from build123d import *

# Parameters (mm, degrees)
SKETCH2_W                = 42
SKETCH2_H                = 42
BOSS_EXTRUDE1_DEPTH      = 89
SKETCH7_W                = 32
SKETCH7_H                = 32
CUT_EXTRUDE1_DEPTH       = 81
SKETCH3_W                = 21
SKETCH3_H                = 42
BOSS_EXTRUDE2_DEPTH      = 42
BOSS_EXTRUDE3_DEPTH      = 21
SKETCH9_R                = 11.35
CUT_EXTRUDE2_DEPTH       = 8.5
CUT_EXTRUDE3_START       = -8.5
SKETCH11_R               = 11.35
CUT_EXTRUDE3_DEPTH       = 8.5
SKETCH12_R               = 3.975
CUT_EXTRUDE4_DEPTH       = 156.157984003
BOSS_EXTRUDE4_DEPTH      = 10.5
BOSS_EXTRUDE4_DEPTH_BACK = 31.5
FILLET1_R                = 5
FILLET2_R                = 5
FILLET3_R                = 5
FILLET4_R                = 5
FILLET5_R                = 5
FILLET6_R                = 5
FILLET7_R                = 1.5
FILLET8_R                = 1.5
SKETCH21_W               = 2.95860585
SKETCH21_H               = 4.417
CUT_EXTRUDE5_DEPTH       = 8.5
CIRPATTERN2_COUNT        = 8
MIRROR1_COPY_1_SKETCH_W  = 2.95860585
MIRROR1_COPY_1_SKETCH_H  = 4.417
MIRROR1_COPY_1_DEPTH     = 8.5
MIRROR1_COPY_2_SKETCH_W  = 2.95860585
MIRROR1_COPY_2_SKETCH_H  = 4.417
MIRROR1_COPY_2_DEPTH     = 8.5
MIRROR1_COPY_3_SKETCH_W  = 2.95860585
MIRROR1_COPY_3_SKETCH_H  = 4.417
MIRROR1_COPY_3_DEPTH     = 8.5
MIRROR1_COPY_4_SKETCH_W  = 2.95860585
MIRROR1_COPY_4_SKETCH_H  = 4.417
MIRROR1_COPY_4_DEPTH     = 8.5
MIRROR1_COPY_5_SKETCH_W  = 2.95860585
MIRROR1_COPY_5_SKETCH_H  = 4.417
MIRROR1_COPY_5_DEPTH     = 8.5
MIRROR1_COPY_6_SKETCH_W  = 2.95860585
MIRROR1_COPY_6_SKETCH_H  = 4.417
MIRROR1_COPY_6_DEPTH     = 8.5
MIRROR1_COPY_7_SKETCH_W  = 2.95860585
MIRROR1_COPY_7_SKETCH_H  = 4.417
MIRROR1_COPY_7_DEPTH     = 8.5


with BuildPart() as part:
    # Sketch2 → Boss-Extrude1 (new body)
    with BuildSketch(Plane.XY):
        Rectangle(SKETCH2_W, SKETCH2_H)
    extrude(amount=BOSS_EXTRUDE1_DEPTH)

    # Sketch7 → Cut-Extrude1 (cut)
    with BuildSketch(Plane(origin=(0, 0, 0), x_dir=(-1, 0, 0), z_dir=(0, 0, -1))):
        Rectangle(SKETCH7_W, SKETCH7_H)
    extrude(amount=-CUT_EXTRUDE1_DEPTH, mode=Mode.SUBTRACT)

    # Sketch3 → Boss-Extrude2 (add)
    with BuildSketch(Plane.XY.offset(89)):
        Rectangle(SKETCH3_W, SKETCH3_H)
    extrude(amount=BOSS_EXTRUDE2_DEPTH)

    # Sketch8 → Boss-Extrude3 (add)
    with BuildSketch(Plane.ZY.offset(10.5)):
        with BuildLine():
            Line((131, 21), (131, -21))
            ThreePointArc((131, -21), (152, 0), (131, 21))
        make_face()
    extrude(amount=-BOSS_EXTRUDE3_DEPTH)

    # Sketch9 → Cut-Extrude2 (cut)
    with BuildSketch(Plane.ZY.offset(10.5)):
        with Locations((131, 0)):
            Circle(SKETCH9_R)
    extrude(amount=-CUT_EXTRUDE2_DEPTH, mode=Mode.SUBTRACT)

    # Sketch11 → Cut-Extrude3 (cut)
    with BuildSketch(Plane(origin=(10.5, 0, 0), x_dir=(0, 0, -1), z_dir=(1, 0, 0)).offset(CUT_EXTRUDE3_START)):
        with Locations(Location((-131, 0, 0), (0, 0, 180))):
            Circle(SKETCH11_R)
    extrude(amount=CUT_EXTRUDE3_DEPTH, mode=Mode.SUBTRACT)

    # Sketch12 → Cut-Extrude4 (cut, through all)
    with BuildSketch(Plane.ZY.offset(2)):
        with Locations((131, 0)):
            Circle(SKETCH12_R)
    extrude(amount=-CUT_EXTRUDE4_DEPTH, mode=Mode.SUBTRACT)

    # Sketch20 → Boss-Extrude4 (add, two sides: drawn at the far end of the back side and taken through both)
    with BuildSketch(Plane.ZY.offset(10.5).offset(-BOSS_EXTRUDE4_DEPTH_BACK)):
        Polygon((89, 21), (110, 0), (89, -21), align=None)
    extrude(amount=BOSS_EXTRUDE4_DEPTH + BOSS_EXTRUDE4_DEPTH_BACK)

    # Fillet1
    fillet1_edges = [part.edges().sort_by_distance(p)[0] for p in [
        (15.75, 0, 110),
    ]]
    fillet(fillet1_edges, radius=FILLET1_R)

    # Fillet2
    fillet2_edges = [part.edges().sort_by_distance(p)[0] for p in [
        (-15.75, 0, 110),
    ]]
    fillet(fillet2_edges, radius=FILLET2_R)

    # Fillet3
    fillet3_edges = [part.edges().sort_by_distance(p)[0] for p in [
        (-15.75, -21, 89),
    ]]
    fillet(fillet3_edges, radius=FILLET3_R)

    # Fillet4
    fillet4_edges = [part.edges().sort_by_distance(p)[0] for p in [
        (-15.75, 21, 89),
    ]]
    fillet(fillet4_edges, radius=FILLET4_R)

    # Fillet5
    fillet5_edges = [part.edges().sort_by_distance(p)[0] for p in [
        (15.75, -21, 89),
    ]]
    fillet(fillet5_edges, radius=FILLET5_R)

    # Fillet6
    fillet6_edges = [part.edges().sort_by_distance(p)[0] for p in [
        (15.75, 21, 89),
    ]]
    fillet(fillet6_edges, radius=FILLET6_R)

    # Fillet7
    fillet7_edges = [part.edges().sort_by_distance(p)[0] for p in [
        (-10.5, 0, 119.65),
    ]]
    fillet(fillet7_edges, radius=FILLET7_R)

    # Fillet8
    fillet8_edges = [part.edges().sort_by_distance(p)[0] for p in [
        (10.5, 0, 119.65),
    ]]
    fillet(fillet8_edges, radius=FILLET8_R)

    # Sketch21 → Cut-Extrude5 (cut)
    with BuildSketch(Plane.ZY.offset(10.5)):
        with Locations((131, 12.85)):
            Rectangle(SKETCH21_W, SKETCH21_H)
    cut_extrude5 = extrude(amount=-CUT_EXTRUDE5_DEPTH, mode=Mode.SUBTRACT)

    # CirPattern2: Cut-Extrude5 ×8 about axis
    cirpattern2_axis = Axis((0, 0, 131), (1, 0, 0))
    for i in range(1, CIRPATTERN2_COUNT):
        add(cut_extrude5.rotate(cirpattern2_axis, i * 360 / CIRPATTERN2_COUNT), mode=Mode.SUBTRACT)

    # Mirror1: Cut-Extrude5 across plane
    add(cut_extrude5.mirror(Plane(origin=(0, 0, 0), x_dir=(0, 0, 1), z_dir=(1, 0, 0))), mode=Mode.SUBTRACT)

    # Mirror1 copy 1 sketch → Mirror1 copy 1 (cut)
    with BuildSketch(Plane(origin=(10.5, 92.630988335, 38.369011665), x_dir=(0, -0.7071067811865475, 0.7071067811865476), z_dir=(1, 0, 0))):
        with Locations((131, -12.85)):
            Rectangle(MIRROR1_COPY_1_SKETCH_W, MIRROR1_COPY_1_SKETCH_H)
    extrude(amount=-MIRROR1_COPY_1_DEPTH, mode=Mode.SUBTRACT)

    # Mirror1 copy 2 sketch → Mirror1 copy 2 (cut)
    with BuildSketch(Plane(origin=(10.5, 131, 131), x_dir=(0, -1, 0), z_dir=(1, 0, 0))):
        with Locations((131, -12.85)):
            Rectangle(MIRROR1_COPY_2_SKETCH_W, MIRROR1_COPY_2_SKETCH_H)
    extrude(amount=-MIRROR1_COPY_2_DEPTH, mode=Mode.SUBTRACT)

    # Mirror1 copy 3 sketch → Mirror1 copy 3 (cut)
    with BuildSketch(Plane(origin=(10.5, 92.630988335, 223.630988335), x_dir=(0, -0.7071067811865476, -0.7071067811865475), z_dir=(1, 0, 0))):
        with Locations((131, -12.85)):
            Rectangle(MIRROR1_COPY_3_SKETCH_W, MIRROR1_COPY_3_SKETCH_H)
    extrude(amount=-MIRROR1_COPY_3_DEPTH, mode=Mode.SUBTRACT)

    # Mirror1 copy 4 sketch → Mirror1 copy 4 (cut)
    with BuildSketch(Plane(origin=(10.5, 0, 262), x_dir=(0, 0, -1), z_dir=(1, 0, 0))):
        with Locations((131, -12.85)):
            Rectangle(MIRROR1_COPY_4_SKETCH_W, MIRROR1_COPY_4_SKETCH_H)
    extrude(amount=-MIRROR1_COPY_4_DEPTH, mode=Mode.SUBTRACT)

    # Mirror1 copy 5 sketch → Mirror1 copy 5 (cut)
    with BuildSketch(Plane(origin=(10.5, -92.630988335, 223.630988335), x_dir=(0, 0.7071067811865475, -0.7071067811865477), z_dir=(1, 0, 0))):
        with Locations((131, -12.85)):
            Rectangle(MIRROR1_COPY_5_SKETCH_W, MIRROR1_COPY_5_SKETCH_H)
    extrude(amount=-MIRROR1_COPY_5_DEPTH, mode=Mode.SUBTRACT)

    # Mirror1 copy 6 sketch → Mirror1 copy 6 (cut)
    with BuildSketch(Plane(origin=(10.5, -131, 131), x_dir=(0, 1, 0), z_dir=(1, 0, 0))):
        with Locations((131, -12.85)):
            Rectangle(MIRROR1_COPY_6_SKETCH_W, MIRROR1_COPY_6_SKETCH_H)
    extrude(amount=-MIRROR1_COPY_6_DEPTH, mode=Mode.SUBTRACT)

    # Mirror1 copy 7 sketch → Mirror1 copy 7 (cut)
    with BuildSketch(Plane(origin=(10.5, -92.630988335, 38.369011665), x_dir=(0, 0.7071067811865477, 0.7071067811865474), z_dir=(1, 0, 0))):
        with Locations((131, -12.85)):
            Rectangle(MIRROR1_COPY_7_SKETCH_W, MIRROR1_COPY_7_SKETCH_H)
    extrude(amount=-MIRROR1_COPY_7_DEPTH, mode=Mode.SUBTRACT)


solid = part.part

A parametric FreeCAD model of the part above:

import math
import FreeCAD as App
import Part
import Sketcher

V = App.Vector
Q = App.Units.Quantity


def edges_at(feature, points):
    """Names of the edges that pass closest to the given points."""
    edges = feature.Shape.Edges
    near = lambda p: min(range(len(edges)), key=lambda i: edges[i].distToShape(Part.Vertex(*p))[0])
    return sorted({f"Edge{near(p) + 1}" for p in points})

doc = App.newDocument("Part")
body = doc.addObject("PartDesign::Body", "Body")

sketch1 = doc.addObject("Sketcher::SketchObject", "Sketch")
body.addObject(sketch1)
sketch1.AttachmentSupport = (doc.XY_Plane, [""])
sketch1.MapMode = "FlatFace"
sketch1.addGeometry(Part.LineSegment(V(-21, 21, 0), V(-21, -21, 0)), False)
sketch1.addGeometry(Part.LineSegment(V(-21, -21, 0), V(21, -21, 0)), False)
sketch1.addGeometry(Part.LineSegment(V(21, -21, 0), V(21, 21, 0)), False)
sketch1.addGeometry(Part.LineSegment(V(21, 21, 0), V(-21, 21, 0)), False)
sketch1.addConstraint(Sketcher.Constraint("Coincident", 0, 2, 1, 1))
sketch1.addConstraint(Sketcher.Constraint("Coincident", 1, 2, 2, 1))
sketch1.addConstraint(Sketcher.Constraint("Coincident", 2, 2, 3, 1))
sketch1.addConstraint(Sketcher.Constraint("Coincident", 3, 2, 0, 1))
sketch1.addConstraint(Sketcher.Constraint("Vertical", 0))
sketch1.addConstraint(Sketcher.Constraint("Horizontal", 1))
sketch1.addConstraint(Sketcher.Constraint("Vertical", 2))
sketch1.addConstraint(Sketcher.Constraint("Horizontal", 3))
sketch1.addConstraint(Sketcher.Constraint("Symmetric", 0, 2, 2, 2, -1, 1))
sketch1.addConstraint(Sketcher.Constraint("Equal", 3, 0))
sketch1.addConstraint(Sketcher.Constraint("DistanceX", 1, 1, 1, 2, 42.0))
pad1 = doc.addObject("PartDesign::Pad", "Pad")
body.addObject(pad1)
pad1.Profile = sketch1
pad1.Length = 89

sketch2 = doc.addObject("Sketcher::SketchObject", "Sketch001")
body.addObject(sketch2)
sketch2.AttachmentSupport = (doc.XY_Plane, [""])
sketch2.MapMode = "FlatFace"
sketch2.addGeometry(Part.LineSegment(V(16, 16, 0), V(16, -16, 0)), False)
sketch2.addGeometry(Part.LineSegment(V(16, -16, 0), V(-16, -16, 0)), False)
sketch2.addGeometry(Part.LineSegment(V(-16, -16, 0), V(-16, 16, 0)), False)
sketch2.addGeometry(Part.LineSegment(V(-16, 16, 0), V(16, 16, 0)), False)
sketch2.addConstraint(Sketcher.Constraint("Coincident", 0, 2, 1, 1))
sketch2.addConstraint(Sketcher.Constraint("Coincident", 1, 2, 2, 1))
sketch2.addConstraint(Sketcher.Constraint("Coincident", 2, 2, 3, 1))
sketch2.addConstraint(Sketcher.Constraint("Coincident", 3, 2, 0, 1))
sketch2.addConstraint(Sketcher.Constraint("Vertical", 0))
sketch2.addConstraint(Sketcher.Constraint("Horizontal", 1))
sketch2.addConstraint(Sketcher.Constraint("Vertical", 2))
sketch2.addConstraint(Sketcher.Constraint("Horizontal", 3))
sketch2.addConstraint(Sketcher.Constraint("Symmetric", 0, 2, 2, 2, -1, 1))
sketch2.addConstraint(Sketcher.Constraint("Equal", 3, 0))
sketch2.addConstraint(Sketcher.Constraint("DistanceX", 1, 2, 1, 1, 32.0))
pocket1 = doc.addObject("PartDesign::Pocket", "Pocket")
body.addObject(pocket1)
pocket1.Profile = sketch2
pocket1.Length = 81
pocket1.Reversed = True

sketch3 = doc.addObject("Sketcher::SketchObject", "Sketch002")
body.addObject(sketch3)
sketch3.AttachmentSupport = (doc.XY_Plane, [""])
sketch3.MapMode = "FlatFace"
sketch3.AttachmentOffset = App.Placement(V(0, 0, 89), App.Rotation())
sketch3.addGeometry(Part.LineSegment(V(-10.5, 21, 0), V(-10.5, -21, 0)), False)
sketch3.addGeometry(Part.LineSegment(V(-10.5, -21, 0), V(10.5, -21, 0)), False)
sketch3.addGeometry(Part.LineSegment(V(10.5, -21, 0), V(10.5, 21, 0)), False)
sketch3.addGeometry(Part.LineSegment(V(10.5, 21, 0), V(-10.5, 21, 0)), False)
sketch3.addConstraint(Sketcher.Constraint("Coincident", 0, 2, 1, 1))
sketch3.addConstraint(Sketcher.Constraint("Coincident", 1, 2, 2, 1))
sketch3.addConstraint(Sketcher.Constraint("Coincident", 2, 2, 3, 1))
sketch3.addConstraint(Sketcher.Constraint("Coincident", 3, 2, 0, 1))
sketch3.addConstraint(Sketcher.Constraint("Vertical", 0))
sketch3.addConstraint(Sketcher.Constraint("Horizontal", 1))
sketch3.addConstraint(Sketcher.Constraint("Vertical", 2))
sketch3.addConstraint(Sketcher.Constraint("Horizontal", 3))
sketch3.addConstraint(Sketcher.Constraint("Symmetric", 0, 2, 2, 2, -1, 1))
sketch3.addConstraint(Sketcher.Constraint("DistanceX", 1, 1, 1, 2, 21.0))
sketch3.addConstraint(Sketcher.Constraint("DistanceY", 0, 2, 0, 1, 42.0))
pad2 = doc.addObject("PartDesign::Pad", "Pad001")
body.addObject(pad2)
pad2.Profile = sketch3
pad2.Length = 42

sketch4 = doc.addObject("Sketcher::SketchObject", "Sketch003")
body.addObject(sketch4)
sketch4.AttachmentSupport = (doc.YZ_Plane, [""])
sketch4.MapMode = "FlatFace"
sketch4.AttachmentOffset = App.Placement(V(0, 0, -10.5), App.Rotation())
sketch4.addGeometry(Part.LineSegment(V(21, 131, 0), V(-21, 131, 0)), False)
sketch4.addGeometry(Part.ArcOfCircle(Part.Circle(V(0, 131, 0), V(0, 0, 1), 21), math.radians(0), math.radians(180)), False)
sketch4.addConstraint(Sketcher.Constraint("Coincident", 0, 1, 1, 1))
sketch4.addConstraint(Sketcher.Constraint("Coincident", 1, 2, 0, 2))
sketch4.addConstraint(Sketcher.Constraint("Horizontal", 0))
sketch4.addConstraint(Sketcher.Constraint("PointOnObject", 1, 3, -2))
sketch4.addConstraint(Sketcher.Constraint("Horizontal", 1, 3, 0, 1))
sketch4.addConstraint(Sketcher.Constraint("Radius", 1, 21.0))
sketch4.addConstraint(Sketcher.Constraint("DistanceY", -1, 1, 1, 3, 131.0))
pad3 = doc.addObject("PartDesign::Pad", "Pad002")
body.addObject(pad3)
pad3.Profile = sketch4
pad3.Length = 21

sketch5 = doc.addObject("Sketcher::SketchObject", "Sketch004")
body.addObject(sketch5)
sketch5.AttachmentSupport = (doc.YZ_Plane, [""])
sketch5.MapMode = "FlatFace"
sketch5.AttachmentOffset = App.Placement(V(0, 0, -10.5), App.Rotation())
sketch5.addGeometry(Part.Circle(V(0, 131, 0), V(0, 0, 1), 11.35), False)
sketch5.addConstraint(Sketcher.Constraint("PointOnObject", 0, 3, -2))
sketch5.addConstraint(Sketcher.Constraint("Diameter", 0, 22.7))
sketch5.addConstraint(Sketcher.Constraint("DistanceY", -1, 1, 0, 3, 131.0))
pocket2 = doc.addObject("PartDesign::Pocket", "Pocket001")
body.addObject(pocket2)
pocket2.Profile = sketch5
pocket2.Length = 8.5
pocket2.Reversed = True

sketch6 = doc.addObject("Sketcher::SketchObject", "Sketch005")
body.addObject(sketch6)
sketch6.AttachmentSupport = (doc.YZ_Plane, [""])
sketch6.MapMode = "FlatFace"
sketch6.AttachmentOffset = App.Placement(V(0, 0, 2), App.Rotation())
sketch6.addGeometry(Part.Circle(V(0, 131, 0), V(0, 0, 1), 11.35), False)
sketch6.addConstraint(Sketcher.Constraint("PointOnObject", 0, 3, -2))
sketch6.addConstraint(Sketcher.Constraint("Diameter", 0, 22.7))
sketch6.addConstraint(Sketcher.Constraint("DistanceY", -1, 1, 0, 3, 131.0))
pocket3 = doc.addObject("PartDesign::Pocket", "Pocket002")
body.addObject(pocket3)
pocket3.Profile = sketch6
pocket3.Length = 8.5
pocket3.Reversed = True

sketch7 = doc.addObject("Sketcher::SketchObject", "Sketch006")
body.addObject(sketch7)
sketch7.AttachmentSupport = (doc.YZ_Plane, [""])
sketch7.MapMode = "FlatFace"
sketch7.AttachmentOffset = App.Placement(V(0, 0, -2), App.Rotation())
sketch7.addGeometry(Part.Circle(V(0, 131, 0), V(0, 0, 1), 3.975), False)
sketch7.addConstraint(Sketcher.Constraint("PointOnObject", 0, 3, -2))
sketch7.addConstraint(Sketcher.Constraint("Diameter", 0, 7.95))
sketch7.addConstraint(Sketcher.Constraint("DistanceY", -1, 1, 0, 3, 131.0))
pocket4 = doc.addObject("PartDesign::Pocket", "Pocket003")
body.addObject(pocket4)
pocket4.Profile = sketch7
pocket4.Type = "ThroughAll"
pocket4.Reversed = True

sketch8 = doc.addObject("Sketcher::SketchObject", "Sketch007")
body.addObject(sketch8)
sketch8.AttachmentSupport = (doc.YZ_Plane, [""])
sketch8.MapMode = "FlatFace"
sketch8.AttachmentOffset = App.Placement(V(0, 0, -10.5), App.Rotation())
sketch8.addGeometry(Part.LineSegment(V(0, 110, 0), V(21, 89, 0)), False)
sketch8.addGeometry(Part.LineSegment(V(21, 89, 0), V(-21, 89, 0)), False)
sketch8.addGeometry(Part.LineSegment(V(-21, 89, 0), V(0, 110, 0)), False)
sketch8.addConstraint(Sketcher.Constraint("Coincident", 0, 2, 1, 1))
sketch8.addConstraint(Sketcher.Constraint("Coincident", 1, 2, 2, 1))
sketch8.addConstraint(Sketcher.Constraint("Coincident", 2, 2, 0, 1))
sketch8.addConstraint(Sketcher.Constraint("Horizontal", 1))
sketch8.addConstraint(Sketcher.Constraint("PointOnObject", 2, 2, -2))
sketch8.addConstraint(Sketcher.Constraint("Perpendicular", 0, 2))
sketch8.addConstraint(Sketcher.Constraint("Equal", 0, 2))
sketch8.addConstraint(Sketcher.Constraint("DistanceX", 1, 2, 1, 1, 42.0))
sketch8.addConstraint(Sketcher.Constraint("DistanceY", -1, 1, 0, 2, 89.0))
pad4 = doc.addObject("PartDesign::Pad", "Pad003")
body.addObject(pad4)
pad4.Profile = sketch8
pad4.Type = "TwoLengths"
pad4.Length = 10.5
pad4.Length2 = 31.5
pad4.Reversed = True
doc.recompute()

fillet = doc.addObject("PartDesign::Fillet", "Fillet")
body.addObject(fillet)
fillet.Base = (pad4, edges_at(pad4, [(15.75, 0, 110)]))
fillet.Radius = 5
doc.recompute()

fillet2 = doc.addObject("PartDesign::Fillet", "Fillet001")
body.addObject(fillet2)
fillet2.Base = (fillet, edges_at(fillet, [(-15.75, 0, 110)]))
fillet2.Radius = 5
doc.recompute()

fillet3 = doc.addObject("PartDesign::Fillet", "Fillet002")
body.addObject(fillet3)
fillet3.Base = (fillet2, edges_at(fillet2, [(-15.75, -21, 89)]))
fillet3.Radius = 5
doc.recompute()

fillet4 = doc.addObject("PartDesign::Fillet", "Fillet003")
body.addObject(fillet4)
fillet4.Base = (fillet3, edges_at(fillet3, [(-15.75, 21, 89)]))
fillet4.Radius = 5
doc.recompute()

fillet5 = doc.addObject("PartDesign::Fillet", "Fillet004")
body.addObject(fillet5)
fillet5.Base = (fillet4, edges_at(fillet4, [(15.75, -21, 89)]))
fillet5.Radius = 5
doc.recompute()

fillet6 = doc.addObject("PartDesign::Fillet", "Fillet005")
body.addObject(fillet6)
fillet6.Base = (fillet5, edges_at(fillet5, [(15.75, 21, 89)]))
fillet6.Radius = 5
doc.recompute()

fillet7 = doc.addObject("PartDesign::Fillet", "Fillet006")
body.addObject(fillet7)
fillet7.Base = (fillet6, edges_at(fillet6, [(-10.5, 0, 119.65)]))
fillet7.Radius = 1.5
doc.recompute()

fillet8 = doc.addObject("PartDesign::Fillet", "Fillet007")
body.addObject(fillet8)
fillet8.Base = (fillet7, edges_at(fillet7, [(10.5, 0, 119.65)]))
fillet8.Radius = 1.5

sketch9 = doc.addObject("Sketcher::SketchObject", "Sketch008")
body.addObject(sketch9)
sketch9.AttachmentSupport = (doc.YZ_Plane, [""])
sketch9.MapMode = "FlatFace"
sketch9.AttachmentOffset = App.Placement(V(0, 0, -10.5), App.Rotation())
sketch9.addGeometry(Part.LineSegment(V(15.0585, 129.520697, 0), V(10.6415, 129.520697, 0)), False)
sketch9.addGeometry(Part.LineSegment(V(10.6415, 129.520697, 0), V(10.6415, 132.479303, 0)), False)
sketch9.addGeometry(Part.LineSegment(V(10.6415, 132.479303, 0), V(15.0585, 132.479303, 0)), False)
sketch9.addGeometry(Part.LineSegment(V(15.0585, 132.479303, 0), V(15.0585, 129.520697, 0)), False)
sketch9.addConstraint(Sketcher.Constraint("Coincident", 0, 2, 1, 1))
sketch9.addConstraint(Sketcher.Constraint("Coincident", 1, 2, 2, 1))
sketch9.addConstraint(Sketcher.Constraint("Coincident", 2, 2, 3, 1))
sketch9.addConstraint(Sketcher.Constraint("Coincident", 3, 2, 0, 1))
sketch9.addConstraint(Sketcher.Constraint("Horizontal", 0))
sketch9.addConstraint(Sketcher.Constraint("Vertical", 1))
sketch9.addConstraint(Sketcher.Constraint("Horizontal", 2))
sketch9.addConstraint(Sketcher.Constraint("Vertical", 3))
sketch9.addConstraint(Sketcher.Constraint("DistanceX", 0, 2, 0, 1, 4.417))
sketch9.addConstraint(Sketcher.Constraint("DistanceX", -1, 1, 0, 2, 10.6415))
sketch9.addConstraint(Sketcher.Constraint("DistanceY", 1, 1, 1, 2, 2.958606))
sketch9.addConstraint(Sketcher.Constraint("DistanceY", -1, 1, 0, 2, 129.520697))
pocket5 = doc.addObject("PartDesign::Pocket", "Pocket004")
body.addObject(pocket5)
pocket5.Profile = sketch9
pocket5.Length = 8.5
pocket5.Reversed = True
doc.recompute()

datumline = doc.addObject("PartDesign::Line", "DatumLine")
body.addObject(datumline)
datumline.Placement = App.Placement(V(0, 0, 131), App.Rotation(V(0, 0, 1), V(1, 0, 0)))
polarpattern = doc.addObject("PartDesign::PolarPattern", "PolarPattern")
body.addObject(polarpattern)
polarpattern.Originals = [pocket5]
polarpattern.Axis = (datumline, [""])
polarpattern.Angle = 360
polarpattern.Occurrences = 8
body.Tip = polarpattern
doc.recompute()

mirrored = doc.addObject("PartDesign::Mirrored", "Mirrored")
body.addObject(mirrored)
mirrored.Originals = [pocket5]
mirrored.MirrorPlane = (doc.YZ_Plane, [""])
body.Tip = mirrored

sketch10 = doc.addObject("Sketcher::SketchObject", "Sketch009")
body.addObject(sketch10)
sketch10.AttachmentSupport = (doc.YZ_Plane, [""])
sketch10.MapMode = "FlatFace"
sketch10.AttachmentOffset = App.Placement(V(0, 0, 10.5), App.Rotation())
sketch10.addGeometry(Part.LineSegment(V(8.570702, 137.478652, 0), V(11.693993, 140.601942, 0)), False)
sketch10.addGeometry(Part.LineSegment(V(11.693993, 140.601942, 0), V(9.601942, 142.693993, 0)), False)
sketch10.addGeometry(Part.LineSegment(V(9.601942, 142.693993, 0), V(6.478652, 139.570702, 0)), False)
sketch10.addGeometry(Part.LineSegment(V(6.478652, 139.570702, 0), V(8.570702, 137.478652, 0)), False)
sketch10.addConstraint(Sketcher.Constraint("Coincident", 0, 2, 1, 1))
sketch10.addConstraint(Sketcher.Constraint("Coincident", 1, 2, 2, 1))
sketch10.addConstraint(Sketcher.Constraint("Coincident", 2, 2, 3, 1))
sketch10.addConstraint(Sketcher.Constraint("Coincident", 3, 2, 0, 1))
sketch10.addConstraint(Sketcher.Constraint("Perpendicular", 0, 1))
sketch10.addConstraint(Sketcher.Constraint("Perpendicular", 1, 2))
sketch10.addConstraint(Sketcher.Constraint("Perpendicular", 2, 3))
sketch10.addConstraint(Sketcher.Constraint("Angle", 0, Q("45 deg")))
sketch10.addConstraint(Sketcher.Constraint("Distance", 0, 4.417))
sketch10.addConstraint(Sketcher.Constraint("DistanceY", -1, 1, 2, 2, 139.570702))
sketch10.addConstraint(Sketcher.Constraint("DistanceX", -1, 1, 3, 2, 8.570702))
sketch10.addConstraint(Sketcher.Constraint("DistanceX", -1, 1, 2, 2, 6.478652))
pocket6 = doc.addObject("PartDesign::Pocket", "Pocket005")
body.addObject(pocket6)
pocket6.Profile = sketch10
pocket6.Length = 8.5

sketch11 = doc.addObject("Sketcher::SketchObject", "Sketch010")
body.addObject(sketch11)
sketch11.AttachmentSupport = (doc.YZ_Plane, [""])
sketch11.MapMode = "FlatFace"
sketch11.AttachmentOffset = App.Placement(V(0, 0, 10.5), App.Rotation())
sketch11.addGeometry(Part.LineSegment(V(1.479303, 141.6415, 0), V(1.479303, 146.0585, 0)), False)
sketch11.addGeometry(Part.LineSegment(V(1.479303, 146.0585, 0), V(-1.479303, 146.0585, 0)), False)
sketch11.addGeometry(Part.LineSegment(V(-1.479303, 146.0585, 0), V(-1.479303, 141.6415, 0)), False)
sketch11.addGeometry(Part.LineSegment(V(-1.479303, 141.6415, 0), V(1.479303, 141.6415, 0)), False)
sketch11.addConstraint(Sketcher.Constraint("Coincident", 0, 2, 1, 1))
sketch11.addConstraint(Sketcher.Constraint("Coincident", 1, 2, 2, 1))
sketch11.addConstraint(Sketcher.Constraint("Coincident", 2, 2, 3, 1))
sketch11.addConstraint(Sketcher.Constraint("Coincident", 3, 2, 0, 1))
sketch11.addConstraint(Sketcher.Constraint("Vertical", 0))
sketch11.addConstraint(Sketcher.Constraint("Horizontal", 1))
sketch11.addConstraint(Sketcher.Constraint("Vertical", 2))
sketch11.addConstraint(Sketcher.Constraint("Horizontal", 3))
sketch11.addConstraint(Sketcher.Constraint("DistanceY", 0, 1, 0, 2, 4.417))
sketch11.addConstraint(Sketcher.Constraint("DistanceY", -1, 1, 0, 2, 146.0585))
sketch11.addConstraint(Sketcher.Constraint("DistanceX", 1, 2, 1, 1, 2.958606))
sketch11.addConstraint(Sketcher.Constraint("DistanceX", -1, 1, 0, 2, 1.479303))
pocket7 = doc.addObject("PartDesign::Pocket", "Pocket006")
body.addObject(pocket7)
pocket7.Profile = sketch11
pocket7.Length = 8.5

sketch12 = doc.addObject("Sketcher::SketchObject", "Sketch011")
body.addObject(sketch12)
sketch12.AttachmentSupport = (doc.YZ_Plane, [""])
sketch12.MapMode = "FlatFace"
sketch12.AttachmentOffset = App.Placement(V(0, 0, 10.5), App.Rotation())
sketch12.addGeometry(Part.LineSegment(V(-6.478652, 139.570702, 0), V(-9.601942, 142.693993, 0)), False)
sketch12.addGeometry(Part.LineSegment(V(-9.601942, 142.693993, 0), V(-11.693993, 140.601942, 0)), False)
sketch12.addGeometry(Part.LineSegment(V(-11.693993, 140.601942, 0), V(-8.570702, 137.478652, 0)), False)
sketch12.addGeometry(Part.LineSegment(V(-8.570702, 137.478652, 0), V(-6.478652, 139.570702, 0)), False)
sketch12.addConstraint(Sketcher.Constraint("Coincident", 0, 2, 1, 1))
sketch12.addConstraint(Sketcher.Constraint("Coincident", 1, 2, 2, 1))
sketch12.addConstraint(Sketcher.Constraint("Coincident", 2, 2, 3, 1))
sketch12.addConstraint(Sketcher.Constraint("Coincident", 3, 2, 0, 1))
sketch12.addConstraint(Sketcher.Constraint("Perpendicular", 0, 1))
sketch12.addConstraint(Sketcher.Constraint("Perpendicular", 1, 2))
sketch12.addConstraint(Sketcher.Constraint("Perpendicular", 2, 3))
sketch12.addConstraint(Sketcher.Constraint("Angle", 0, Q("135 deg")))
sketch12.addConstraint(Sketcher.Constraint("Distance", 0, 4.417))
sketch12.addConstraint(Sketcher.Constraint("DistanceX", 2, 2, -1, 1, 8.570702))
sketch12.addConstraint(Sketcher.Constraint("DistanceY", -1, 1, 3, 2, 139.570702))
sketch12.addConstraint(Sketcher.Constraint("DistanceY", -1, 1, 2, 2, 137.478652))
pocket8 = doc.addObject("PartDesign::Pocket", "Pocket007")
body.addObject(pocket8)
pocket8.Profile = sketch12
pocket8.Length = 8.5

sketch13 = doc.addObject("Sketcher::SketchObject", "Sketch012")
body.addObject(sketch13)
sketch13.AttachmentSupport = (doc.YZ_Plane, [""])
sketch13.MapMode = "FlatFace"
sketch13.AttachmentOffset = App.Placement(V(0, 0, 10.5), App.Rotation())
sketch13.addGeometry(Part.LineSegment(V(-10.6415, 132.479303, 0), V(-15.0585, 132.479303, 0)), False)
sketch13.addGeometry(Part.LineSegment(V(-15.0585, 132.479303, 0), V(-15.0585, 129.520697, 0)), False)
sketch13.addGeometry(Part.LineSegment(V(-15.0585, 129.520697, 0), V(-10.6415, 129.520697, 0)), False)
sketch13.addGeometry(Part.LineSegment(V(-10.6415, 129.520697, 0), V(-10.6415, 132.479303, 0)), False)
sketch13.addConstraint(Sketcher.Constraint("Coincident", 0, 2, 1, 1))
sketch13.addConstraint(Sketcher.Constraint("Coincident", 1, 2, 2, 1))
sketch13.addConstraint(Sketcher.Constraint("Coincident", 2, 2, 3, 1))
sketch13.addConstraint(Sketcher.Constraint("Coincident", 3, 2, 0, 1))
sketch13.addConstraint(Sketcher.Constraint("Horizontal", 0))
sketch13.addConstraint(Sketcher.Constraint("Vertical", 1))
sketch13.addConstraint(Sketcher.Constraint("Horizontal", 2))
sketch13.addConstraint(Sketcher.Constraint("Vertical", 3))
sketch13.addConstraint(Sketcher.Constraint("DistanceX", 0, 2, 0, 1, 4.417))
sketch13.addConstraint(Sketcher.Constraint("DistanceX", 0, 2, -1, 1, 15.0585))
sketch13.addConstraint(Sketcher.Constraint("DistanceY", 1, 2, 1, 1, 2.958606))
sketch13.addConstraint(Sketcher.Constraint("DistanceY", -1, 1, 0, 2, 132.479303))
pocket9 = doc.addObject("PartDesign::Pocket", "Pocket008")
body.addObject(pocket9)
pocket9.Profile = sketch13
pocket9.Length = 8.5

sketch14 = doc.addObject("Sketcher::SketchObject", "Sketch013")
body.addObject(sketch14)
sketch14.AttachmentSupport = (doc.YZ_Plane, [""])
sketch14.MapMode = "FlatFace"
sketch14.AttachmentOffset = App.Placement(V(0, 0, 10.5), App.Rotation())
sketch14.addGeometry(Part.LineSegment(V(-8.570702, 124.521348, 0), V(-11.693993, 121.398058, 0)), False)
sketch14.addGeometry(Part.LineSegment(V(-11.693993, 121.398058, 0), V(-9.601942, 119.306007, 0)), False)
sketch14.addGeometry(Part.LineSegment(V(-9.601942, 119.306007, 0), V(-6.478652, 122.429298, 0)), False)
sketch14.addGeometry(Part.LineSegment(V(-6.478652, 122.429298, 0), V(-8.570702, 124.521348, 0)), False)
sketch14.addConstraint(Sketcher.Constraint("Coincident", 0, 2, 1, 1))
sketch14.addConstraint(Sketcher.Constraint("Coincident", 1, 2, 2, 1))
sketch14.addConstraint(Sketcher.Constraint("Coincident", 2, 2, 3, 1))
sketch14.addConstraint(Sketcher.Constraint("Coincident", 3, 2, 0, 1))
sketch14.addConstraint(Sketcher.Constraint("Perpendicular", 0, 1))
sketch14.addConstraint(Sketcher.Constraint("Perpendicular", 1, 2))
sketch14.addConstraint(Sketcher.Constraint("Perpendicular", 2, 3))
sketch14.addConstraint(Sketcher.Constraint("Angle", 0, Q("-135 deg")))
sketch14.addConstraint(Sketcher.Constraint("Distance", 0, 4.417))
sketch14.addConstraint(Sketcher.Constraint("DistanceY", -1, 1, 2, 2, 122.429298))
sketch14.addConstraint(Sketcher.Constraint("DistanceX", 3, 2, -1, 1, 8.570702))
sketch14.addConstraint(Sketcher.Constraint("DistanceX", 2, 2, -1, 1, 6.478652))
pocket10 = doc.addObject("PartDesign::Pocket", "Pocket009")
body.addObject(pocket10)
pocket10.Profile = sketch14
pocket10.Length = 8.5

sketch15 = doc.addObject("Sketcher::SketchObject", "Sketch014")
body.addObject(sketch15)
sketch15.AttachmentSupport = (doc.YZ_Plane, [""])
sketch15.MapMode = "FlatFace"
sketch15.AttachmentOffset = App.Placement(V(0, 0, 10.5), App.Rotation())
sketch15.addGeometry(Part.LineSegment(V(-1.479303, 120.3585, 0), V(-1.479303, 115.9415, 0)), False)
sketch15.addGeometry(Part.LineSegment(V(-1.479303, 115.9415, 0), V(1.479303, 115.9415, 0)), False)
sketch15.addGeometry(Part.LineSegment(V(1.479303, 115.9415, 0), V(1.479303, 120.3585, 0)), False)
sketch15.addGeometry(Part.LineSegment(V(1.479303, 120.3585, 0), V(-1.479303, 120.3585, 0)), False)
sketch15.addConstraint(Sketcher.Constraint("Coincident", 0, 2, 1, 1))
sketch15.addConstraint(Sketcher.Constraint("Coincident", 1, 2, 2, 1))
sketch15.addConstraint(Sketcher.Constraint("Coincident", 2, 2, 3, 1))
sketch15.addConstraint(Sketcher.Constraint("Coincident", 3, 2, 0, 1))
sketch15.addConstraint(Sketcher.Constraint("Vertical", 0))
sketch15.addConstraint(Sketcher.Constraint("Horizontal", 1))
sketch15.addConstraint(Sketcher.Constraint("Vertical", 2))
sketch15.addConstraint(Sketcher.Constraint("Horizontal", 3))
sketch15.addConstraint(Sketcher.Constraint("DistanceY", 0, 2, 0, 1, 4.417))
sketch15.addConstraint(Sketcher.Constraint("DistanceY", -1, 1, 0, 2, 115.9415))
sketch15.addConstraint(Sketcher.Constraint("DistanceX", 1, 1, 1, 2, 2.958606))
sketch15.addConstraint(Sketcher.Constraint("DistanceX", 0, 2, -1, 1, 1.479303))
pocket11 = doc.addObject("PartDesign::Pocket", "Pocket010")
body.addObject(pocket11)
pocket11.Profile = sketch15
pocket11.Length = 8.5

sketch16 = doc.addObject("Sketcher::SketchObject", "Sketch015")
body.addObject(sketch16)
sketch16.AttachmentSupport = (doc.YZ_Plane, [""])
sketch16.MapMode = "FlatFace"
sketch16.AttachmentOffset = App.Placement(V(0, 0, 10.5), App.Rotation())
sketch16.addGeometry(Part.LineSegment(V(6.478652, 122.429298, 0), V(9.601942, 119.306007, 0)), False)
sketch16.addGeometry(Part.LineSegment(V(9.601942, 119.306007, 0), V(11.693993, 121.398058, 0)), False)
sketch16.addGeometry(Part.LineSegment(V(11.693993, 121.398058, 0), V(8.570702, 124.521348, 0)), False)
sketch16.addGeometry(Part.LineSegment(V(8.570702, 124.521348, 0), V(6.478652, 122.429298, 0)), False)
sketch16.addConstraint(Sketcher.Constraint("Coincident", 0, 2, 1, 1))
sketch16.addConstraint(Sketcher.Constraint("Coincident", 1, 2, 2, 1))
sketch16.addConstraint(Sketcher.Constraint("Coincident", 2, 2, 3, 1))
sketch16.addConstraint(Sketcher.Constraint("Coincident", 3, 2, 0, 1))
sketch16.addConstraint(Sketcher.Constraint("Perpendicular", 0, 1))
sketch16.addConstraint(Sketcher.Constraint("Perpendicular", 1, 2))
sketch16.addConstraint(Sketcher.Constraint("Perpendicular", 2, 3))
sketch16.addConstraint(Sketcher.Constraint("Angle", 0, Q("-45 deg")))
sketch16.addConstraint(Sketcher.Constraint("Distance", 0, 4.417))
sketch16.addConstraint(Sketcher.Constraint("DistanceX", -1, 1, 2, 2, 8.570702))
sketch16.addConstraint(Sketcher.Constraint("DistanceY", -1, 1, 3, 2, 122.429298))
sketch16.addConstraint(Sketcher.Constraint("DistanceY", -1, 1, 2, 2, 124.521348))
pocket12 = doc.addObject("PartDesign::Pocket", "Pocket011")
body.addObject(pocket12)
pocket12.Profile = sketch16
pocket12.Length = 8.5

doc.recompute()
